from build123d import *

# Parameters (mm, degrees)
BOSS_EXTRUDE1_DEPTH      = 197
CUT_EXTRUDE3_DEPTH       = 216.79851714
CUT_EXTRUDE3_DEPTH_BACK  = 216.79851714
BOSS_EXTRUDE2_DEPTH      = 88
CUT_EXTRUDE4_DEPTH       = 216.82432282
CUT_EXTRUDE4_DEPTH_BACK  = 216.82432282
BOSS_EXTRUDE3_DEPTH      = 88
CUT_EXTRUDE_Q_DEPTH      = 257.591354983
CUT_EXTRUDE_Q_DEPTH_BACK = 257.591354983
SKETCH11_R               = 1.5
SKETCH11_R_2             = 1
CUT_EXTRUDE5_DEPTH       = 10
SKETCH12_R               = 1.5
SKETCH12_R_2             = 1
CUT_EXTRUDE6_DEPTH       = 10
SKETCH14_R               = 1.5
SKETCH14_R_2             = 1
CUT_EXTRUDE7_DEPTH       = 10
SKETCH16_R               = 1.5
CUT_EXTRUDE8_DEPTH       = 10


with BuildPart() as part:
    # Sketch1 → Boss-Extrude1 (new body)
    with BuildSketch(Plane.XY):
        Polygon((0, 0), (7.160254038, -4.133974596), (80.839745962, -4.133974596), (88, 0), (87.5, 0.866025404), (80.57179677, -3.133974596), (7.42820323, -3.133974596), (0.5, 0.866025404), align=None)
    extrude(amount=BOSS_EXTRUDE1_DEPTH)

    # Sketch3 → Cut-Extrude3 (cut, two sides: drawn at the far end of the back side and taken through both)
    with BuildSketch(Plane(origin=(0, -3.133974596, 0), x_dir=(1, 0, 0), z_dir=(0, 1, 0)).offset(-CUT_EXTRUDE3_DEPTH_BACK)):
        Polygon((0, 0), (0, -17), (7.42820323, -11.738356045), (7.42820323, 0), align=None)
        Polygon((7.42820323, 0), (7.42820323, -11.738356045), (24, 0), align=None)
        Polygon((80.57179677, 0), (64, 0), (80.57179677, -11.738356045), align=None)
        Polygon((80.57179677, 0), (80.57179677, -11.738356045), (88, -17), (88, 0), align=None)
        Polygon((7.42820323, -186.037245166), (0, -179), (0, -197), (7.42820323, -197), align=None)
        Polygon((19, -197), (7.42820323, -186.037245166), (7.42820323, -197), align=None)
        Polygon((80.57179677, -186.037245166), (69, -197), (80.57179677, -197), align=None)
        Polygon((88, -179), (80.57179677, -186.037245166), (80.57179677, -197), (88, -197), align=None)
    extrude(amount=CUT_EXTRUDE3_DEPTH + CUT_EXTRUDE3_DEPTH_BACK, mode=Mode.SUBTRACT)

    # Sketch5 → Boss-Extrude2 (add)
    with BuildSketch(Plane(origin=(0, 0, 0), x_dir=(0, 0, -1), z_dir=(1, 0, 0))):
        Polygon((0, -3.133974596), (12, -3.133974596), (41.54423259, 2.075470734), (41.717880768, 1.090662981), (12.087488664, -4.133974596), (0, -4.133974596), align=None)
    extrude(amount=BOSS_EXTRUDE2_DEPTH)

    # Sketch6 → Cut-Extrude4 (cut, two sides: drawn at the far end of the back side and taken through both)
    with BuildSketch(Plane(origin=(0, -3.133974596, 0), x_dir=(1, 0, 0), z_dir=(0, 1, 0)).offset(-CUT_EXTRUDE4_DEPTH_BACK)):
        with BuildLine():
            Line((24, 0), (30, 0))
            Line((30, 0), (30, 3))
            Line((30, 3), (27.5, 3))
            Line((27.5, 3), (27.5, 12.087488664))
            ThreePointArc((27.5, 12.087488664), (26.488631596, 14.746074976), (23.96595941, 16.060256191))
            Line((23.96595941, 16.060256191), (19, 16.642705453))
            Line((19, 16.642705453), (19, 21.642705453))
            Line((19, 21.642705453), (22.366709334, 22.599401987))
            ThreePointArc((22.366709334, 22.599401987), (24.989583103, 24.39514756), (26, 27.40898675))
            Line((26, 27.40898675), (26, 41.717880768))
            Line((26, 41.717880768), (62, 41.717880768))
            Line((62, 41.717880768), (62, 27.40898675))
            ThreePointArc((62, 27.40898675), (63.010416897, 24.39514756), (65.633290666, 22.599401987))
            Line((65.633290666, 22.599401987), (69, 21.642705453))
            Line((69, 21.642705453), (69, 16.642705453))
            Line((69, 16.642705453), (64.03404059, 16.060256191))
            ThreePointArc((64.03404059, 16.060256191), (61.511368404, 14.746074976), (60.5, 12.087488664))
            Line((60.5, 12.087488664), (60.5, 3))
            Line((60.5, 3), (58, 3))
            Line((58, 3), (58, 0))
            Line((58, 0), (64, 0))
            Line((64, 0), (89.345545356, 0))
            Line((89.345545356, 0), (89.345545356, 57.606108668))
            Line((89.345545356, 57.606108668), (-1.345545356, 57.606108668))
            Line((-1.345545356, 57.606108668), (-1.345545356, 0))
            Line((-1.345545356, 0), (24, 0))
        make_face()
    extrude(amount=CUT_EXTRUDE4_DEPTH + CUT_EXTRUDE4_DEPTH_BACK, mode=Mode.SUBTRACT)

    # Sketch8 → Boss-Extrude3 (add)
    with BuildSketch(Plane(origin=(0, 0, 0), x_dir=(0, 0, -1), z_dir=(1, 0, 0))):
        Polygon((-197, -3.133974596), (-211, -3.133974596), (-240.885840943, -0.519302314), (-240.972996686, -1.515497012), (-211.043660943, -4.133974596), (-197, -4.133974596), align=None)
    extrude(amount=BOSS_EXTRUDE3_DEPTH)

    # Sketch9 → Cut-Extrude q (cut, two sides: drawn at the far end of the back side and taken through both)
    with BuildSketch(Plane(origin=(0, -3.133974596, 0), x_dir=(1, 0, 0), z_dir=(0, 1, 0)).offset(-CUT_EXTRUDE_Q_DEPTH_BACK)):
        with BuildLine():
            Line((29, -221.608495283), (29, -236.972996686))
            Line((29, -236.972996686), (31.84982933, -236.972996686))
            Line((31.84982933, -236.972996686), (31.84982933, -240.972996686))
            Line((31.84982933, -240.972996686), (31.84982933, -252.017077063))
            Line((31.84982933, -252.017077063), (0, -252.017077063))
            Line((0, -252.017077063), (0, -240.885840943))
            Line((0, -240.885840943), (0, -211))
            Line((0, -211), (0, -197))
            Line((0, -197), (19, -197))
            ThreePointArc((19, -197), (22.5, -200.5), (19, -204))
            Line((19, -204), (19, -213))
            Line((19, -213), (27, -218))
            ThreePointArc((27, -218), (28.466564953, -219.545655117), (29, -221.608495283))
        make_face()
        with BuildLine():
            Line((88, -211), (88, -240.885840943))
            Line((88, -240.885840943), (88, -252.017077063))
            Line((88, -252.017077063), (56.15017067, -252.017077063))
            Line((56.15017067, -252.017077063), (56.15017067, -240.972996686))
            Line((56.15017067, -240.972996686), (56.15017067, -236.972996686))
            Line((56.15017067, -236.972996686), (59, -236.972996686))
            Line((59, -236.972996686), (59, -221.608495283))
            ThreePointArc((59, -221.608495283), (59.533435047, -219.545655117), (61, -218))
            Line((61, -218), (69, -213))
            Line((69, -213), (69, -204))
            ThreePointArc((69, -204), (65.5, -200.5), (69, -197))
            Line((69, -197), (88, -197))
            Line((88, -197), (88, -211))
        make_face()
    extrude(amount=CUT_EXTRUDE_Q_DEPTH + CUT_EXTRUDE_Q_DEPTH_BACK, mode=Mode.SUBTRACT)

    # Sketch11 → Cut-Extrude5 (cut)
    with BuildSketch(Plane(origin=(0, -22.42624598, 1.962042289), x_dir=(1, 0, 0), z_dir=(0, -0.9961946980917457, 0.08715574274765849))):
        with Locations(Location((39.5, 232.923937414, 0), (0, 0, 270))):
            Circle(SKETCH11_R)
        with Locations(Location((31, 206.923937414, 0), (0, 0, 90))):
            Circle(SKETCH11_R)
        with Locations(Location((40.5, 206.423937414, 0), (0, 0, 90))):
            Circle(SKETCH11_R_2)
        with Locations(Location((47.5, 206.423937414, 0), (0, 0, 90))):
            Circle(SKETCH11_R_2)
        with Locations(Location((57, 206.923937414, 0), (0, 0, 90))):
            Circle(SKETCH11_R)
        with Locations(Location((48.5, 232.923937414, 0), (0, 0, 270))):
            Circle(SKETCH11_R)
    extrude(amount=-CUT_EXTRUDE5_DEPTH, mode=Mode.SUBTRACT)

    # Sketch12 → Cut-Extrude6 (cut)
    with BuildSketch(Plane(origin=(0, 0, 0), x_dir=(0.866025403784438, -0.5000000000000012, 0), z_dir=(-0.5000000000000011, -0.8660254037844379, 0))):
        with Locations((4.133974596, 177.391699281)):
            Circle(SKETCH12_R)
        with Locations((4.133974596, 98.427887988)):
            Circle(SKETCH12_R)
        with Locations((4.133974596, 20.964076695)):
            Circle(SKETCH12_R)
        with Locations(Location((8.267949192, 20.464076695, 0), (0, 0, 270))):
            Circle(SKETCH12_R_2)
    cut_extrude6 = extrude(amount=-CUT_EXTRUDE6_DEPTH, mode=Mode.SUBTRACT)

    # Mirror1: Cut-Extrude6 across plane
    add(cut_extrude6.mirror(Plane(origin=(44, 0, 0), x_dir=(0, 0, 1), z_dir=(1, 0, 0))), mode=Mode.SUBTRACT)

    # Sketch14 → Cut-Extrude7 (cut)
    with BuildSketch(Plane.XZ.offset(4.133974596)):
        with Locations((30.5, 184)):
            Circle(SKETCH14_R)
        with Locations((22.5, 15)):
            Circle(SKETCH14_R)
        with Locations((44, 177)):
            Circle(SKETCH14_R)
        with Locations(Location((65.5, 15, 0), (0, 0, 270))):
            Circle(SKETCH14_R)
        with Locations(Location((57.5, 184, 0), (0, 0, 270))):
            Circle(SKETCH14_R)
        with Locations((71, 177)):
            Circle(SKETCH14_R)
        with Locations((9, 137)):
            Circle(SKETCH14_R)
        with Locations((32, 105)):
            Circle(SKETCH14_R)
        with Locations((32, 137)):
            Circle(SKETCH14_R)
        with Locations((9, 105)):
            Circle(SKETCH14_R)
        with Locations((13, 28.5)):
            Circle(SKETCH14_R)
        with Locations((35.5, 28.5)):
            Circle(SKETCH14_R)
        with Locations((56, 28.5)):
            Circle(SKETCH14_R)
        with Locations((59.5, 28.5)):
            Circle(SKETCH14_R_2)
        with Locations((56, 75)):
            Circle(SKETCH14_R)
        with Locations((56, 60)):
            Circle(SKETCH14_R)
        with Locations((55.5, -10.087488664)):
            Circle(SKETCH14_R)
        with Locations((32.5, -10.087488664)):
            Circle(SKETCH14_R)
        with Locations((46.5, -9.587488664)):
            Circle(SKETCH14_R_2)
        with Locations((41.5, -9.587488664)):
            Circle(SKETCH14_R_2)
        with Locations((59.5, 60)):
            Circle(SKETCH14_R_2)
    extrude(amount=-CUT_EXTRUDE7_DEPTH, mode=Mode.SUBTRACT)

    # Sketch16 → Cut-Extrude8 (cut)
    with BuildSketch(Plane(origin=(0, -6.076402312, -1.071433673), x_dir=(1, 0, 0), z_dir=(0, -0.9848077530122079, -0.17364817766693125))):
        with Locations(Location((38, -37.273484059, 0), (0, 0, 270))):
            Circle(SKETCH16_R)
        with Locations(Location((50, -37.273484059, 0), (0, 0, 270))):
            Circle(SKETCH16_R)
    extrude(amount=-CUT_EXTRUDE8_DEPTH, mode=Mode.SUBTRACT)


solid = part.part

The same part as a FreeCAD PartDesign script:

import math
import FreeCAD as App
import Part
import Sketcher
Q = App.Units.Quantity


def add_polygon(sketch, points):
    """Adds a closed chain of lines whose ends are joined by coincident constraints."""
    first, n = sketch.GeometryCount, len(points)
    for a, b in zip(points, points[1:] + points[:1]):
        sketch.addGeometry(Part.LineSegment(App.Vector(*a, 0), App.Vector(*b, 0)), False)
    for i in range(n):
        sketch.addConstraint(Sketcher.Constraint("Coincident", first + i, 2, first + (i + 1) % n, 1))

doc = App.newDocument("Part")
params = doc.addObject("Spreadsheet::Sheet", "Params")
for row, (alias, value) in enumerate([
    ("sketch1_length", "1 mm"),
    ("sketch1_length2", "8 mm"),
    ("pad1_length", "197 mm"),
    ("sketch2_width", "24 mm"),
    ("sketch2_width2", "19 mm"),
    ("sketch2_height", "17 mm"),
    ("sketch2_height2", "18 mm"),
    ("sketch3_width", "1 mm"),
    ("sketch3_height", "12 mm"),
    ("sketch3_length", "1 mm"),
    ("sketch3_length2", "30 mm"),
    ("pad2_length", "88 mm"),
    ("sketch4_radius", "4 mm"),
    ("sketch4_radius2", "5 mm"),
    ("sketch4_width", "36 mm"),
    ("sketch4_height", "3 mm"),
    ("sketch4_height2", "5 mm"),
    ("sketch5_width", "1 mm"),
    ("sketch5_height", "14 mm"),
    ("sketch5_length", "30 mm"),
    ("sketch5_length2", "1 mm"),
    ("pad3_length", "88 mm"),
    ("sketch6_radius", "3.5 mm"),
    ("sketch6_width", "19 mm"),
    ("sketch6_height", "9 mm"),
    ("sketch7_diameter", "3 mm"),
    ("sketch7_diameter2", "2 mm"),
    ("pocket4_length", "10 mm"),
    ("sketch8_diameter", "3 mm"),
    ("sketch8_diameter2", "2 mm"),
    ("pocket5_length", "10 mm"),
    ("sketch9_diameter", "3 mm"),
    ("sketch9_diameter2", "2 mm"),
    ("pocket6_length", "10 mm"),
    ("sketch10_diameter", "3 mm"),
    ("pocket7_length", "10 mm"),
], start=1):
    params.set(f"A{row}", alias)
    params.set(f"B{row}", "=" + value)
    params.setAlias(f"B{row}", alias)

body = doc.addObject("PartDesign::Body", "Body")

sketch1 = body.newObject("Sketcher::SketchObject", "Sketch")
sketch1.AttachmentSupport = (doc.getObject("XY_Plane"), [""])
sketch1.MapMode = "FlatFace"
add_polygon(sketch1, [(0, 0), (7.160254, -4.133975), (80.839746, -4.133975), (88, 0), (87.5, 0.866025), (80.571797, -3.133975), (7.428203, -3.133975), (0.5, 0.866025)])
sketch1.addConstraint(Sketcher.Constraint("Horizontal", 1))
sketch1.addConstraint(Sketcher.Constraint("Horizontal", 5))
sketch1.addConstraint(Sketcher.Constraint("Coincident", 7, 2, -1, 1))
sketch1.addConstraint(Sketcher.Constraint("PointOnObject", 2, 2, -1))
sketch1.addConstraint(Sketcher.Constraint("Perpendicular", 2, 3))
sketch1.addConstraint(Sketcher.Constraint("Perpendicular", 3, 4))
sketch1.addConstraint(Sketcher.Constraint("Parallel", 0, 6))
sketch1.addConstraint(Sketcher.Constraint("Perpendicular", 6, 7))
sketch1.addConstraint(Sketcher.Constraint("Horizontal", 3, 2, 6, 2))
sketch1.addConstraint(Sketcher.Constraint("Equal", 0, 2))
sketch1.addConstraint(Sketcher.Constraint("Angle", 0, Q("-30 deg")))
sketch1.addConstraint(Sketcher.Constraint("Distance", 3, 1.0))
sketch1.addConstraint(Sketcher.Constraint("Distance", 4, 8.0))
sketch1.addConstraint(Sketcher.Constraint("DistanceX", -1, 1, 2, 2, 88.0))
sketch1.addConstraint(Sketcher.Constraint("DistanceY", 1, 2, 3, 2, 5.0))
sketch1.setExpression("Constraints[19]", "Params.sketch1_length")
sketch1.setExpression("Constraints[20]", "Params.sketch1_length2")
pad1 = body.newObject("PartDesign::Pad", "Pad")
pad1.Profile = sketch1
pad1.setExpression("Length", "Params.pad1_length")

sketch2 = body.newObject("Sketcher::SketchObject", "Sketch001")
sketch2.AttachmentSupport = (doc.getObject("XZ_Plane"), [""])
sketch2.MapMode = "FlatFace"
sketch2.AttachmentOffset = App.Placement(App.Vector(0, 0, 3.133975), App.Rotation())
add_polygon(sketch2, [(0, 0), (0, 17), (7.428203, 11.738356), (24, 0)])
add_polygon(sketch2, [(64, 0), (80.571797, 11.738356), (88, 17), (88, 0)])
add_polygon(sketch2, [(7.428203, 186.037245), (0, 179), (0, 197), (19, 197)])
add_polygon(sketch2, [(80.571797, 186.037245), (69, 197), (88, 197), (88, 179)])
sketch2.addConstraint(Sketcher.Constraint("Vertical", 0))
sketch2.addConstraint(Sketcher.Constraint("Horizontal", 3))
sketch2.addConstraint(Sketcher.Constraint("Vertical", 6))
sketch2.addConstraint(Sketcher.Constraint("Horizontal", 7))
sketch2.addConstraint(Sketcher.Constraint("Vertical", 9))
sketch2.addConstraint(Sketcher.Constraint("Horizontal", 10))
sketch2.addConstraint(Sketcher.Constraint("Horizontal", 13))
sketch2.addConstraint(Sketcher.Constraint("Vertical", 14))
sketch2.addConstraint(Sketcher.Constraint("Coincident", 3, 2, -1, 1))
sketch2.addConstraint(Sketcher.Constraint("PointOnObject", 6, 2, -1))
sketch2.addConstraint(Sketcher.Constraint("PointOnObject", 8, 2, -2))
sketch2.addConstraint(Sketcher.Constraint("Parallel", 1, 2))
sketch2.addConstraint(Sketcher.Constraint("Parallel", 4, 5))
sketch2.addConstraint(Sketcher.Constraint("Parallel", 8, 11))
sketch2.addConstraint(Sketcher.Constraint("Parallel", 12, 15))
sketch2.addConstraint(Sketcher.Constraint("Horizontal", 1, 2, 4, 2))
sketch2.addConstraint(Sketcher.Constraint("Horizontal", 0, 2, 5, 2))
sketch2.addConstraint(Sketcher.Constraint("Horizontal", 10, 2, 12, 2))
sketch2.addConstraint(Sketcher.Constraint("Horizontal", 8, 2, 14, 2))
sketch2.addConstraint(Sketcher.Constraint("Horizontal", 11, 2, 15, 2))
sketch2.addConstraint(Sketcher.Constraint("Vertical", 1, 2, 11, 2))
sketch2.addConstraint(Sketcher.Constraint("Vertical", 6, 2, 13, 2))
sketch2.addConstraint(Sketcher.Constraint("Vertical", 4, 2, 15, 2))
sketch2.addConstraint(Sketcher.Constraint("Equal", 3, 7))
sketch2.addConstraint(Sketcher.Constraint("DistanceX", 3, 2, 3, 1, 24.0))
sketch2.addConstraint(Sketcher.Constraint("DistanceX", 10, 1, 10, 2, 19.0))
sketch2.addConstraint(Sketcher.Constraint("DistanceY", 0, 1, 0, 2, 17.0))
sketch2.addConstraint(Sketcher.Constraint("DistanceY", 9, 1, 9, 2, 18.0))
sketch2.addConstraint(Sketcher.Constraint("DistanceX", -1, 1, 5, 2, 88.0))
sketch2.addConstraint(Sketcher.Constraint("DistanceY", -1, 1, 8, 2, 179.0))
sketch2.addConstraint(Sketcher.Constraint("Distance", 8, 10.232352))
sketch2.setExpression("Constraints[40]", "Params.sketch2_width")
sketch2.setExpression("Constraints[41]", "Params.sketch2_width2")
sketch2.setExpression("Constraints[42]", "Params.sketch2_height")
sketch2.setExpression("Constraints[43]", "Params.sketch2_height2")
pocket1 = body.newObject("PartDesign::Pocket", "Pocket")
pocket1.Profile = sketch2
pocket1.Type = "ThroughAll"
pocket1.Midplane = True

sketch3 = body.newObject("Sketcher::SketchObject", "Sketch002")
sketch3.AttachmentSupport = (doc.getObject("YZ_Plane"), [""])
sketch3.MapMode = "FlatFace"
add_polygon(sketch3, [(-3.133975, -12), (-3.133975, 0), (-4.133975, 0), (-4.133975, -12.087489), (1.090663, -41.717881), (2.075471, -41.544233)])
sketch3.addConstraint(Sketcher.Constraint("Vertical", 0))
sketch3.addConstraint(Sketcher.Constraint("Horizontal", 1))
sketch3.addConstraint(Sketcher.Constraint("Vertical", 2))
sketch3.addConstraint(Sketcher.Constraint("PointOnObject", 0, 2, -1))
sketch3.addConstraint(Sketcher.Constraint("Perpendicular", 3, 4))
sketch3.addConstraint(Sketcher.Constraint("Perpendicular", 4, 5))
sketch3.addConstraint(Sketcher.Constraint("DistanceX", 1, 2, 1, 1, 1.0))
sketch3.addConstraint(Sketcher.Constraint("DistanceY", 0, 1, 0, 2, 12.0))
sketch3.addConstraint(Sketcher.Constraint("Angle", 3, Q("-80 deg")))
sketch3.addConstraint(Sketcher.Constraint("Distance", 4, 1.0))
sketch3.addConstraint(Sketcher.Constraint("Distance", 5, 30.0))
sketch3.addConstraint(Sketcher.Constraint("DistanceX", -1, 1, 4, 2, 2.075471))
sketch3.setExpression("Constraints[12]", "Params.sketch3_width")
sketch3.setExpression("Constraints[13]", "Params.sketch3_height")
sketch3.setExpression("Constraints[15]", "Params.sketch3_length")
sketch3.setExpression("Constraints[16]", "Params.sketch3_length2")
pad2 = body.newObject("PartDesign::Pad", "Pad001")
pad2.Profile = sketch3
pad2.setExpression("Length", "Params.pad2_length")

sketch4 = body.newObject("Sketcher::SketchObject", "Sketch003")
sketch4.AttachmentSupport = (doc.getObject("XZ_Plane"), [""])
sketch4.MapMode = "FlatFace"
sketch4.AttachmentOffset = App.Placement(App.Vector(0, 0, 3.133975), App.Rotation())
sketch4.addGeometry(Part.LineSegment(App.Vector(30, 0, 0), App.Vector(30, -3, 0)), False)
sketch4.addGeometry(Part.LineSegment(App.Vector(30, -3, 0), App.Vector(27.5, -3, 0)), False)
sketch4.addGeometry(Part.LineSegment(App.Vector(27.5, -3, 0), App.Vector(27.5, -12.087489, 0)), False)
sketch4.addGeometry(Part.ArcOfCircle(Part.Circle(App.Vector(23.5, -12.087489, 0), App.Vector(0, 0, 1), 4), math.radians(-83.310435), math.radians(0)), False)
sketch4.addGeometry(Part.LineSegment(App.Vector(23.965959, -16.060256, 0), App.Vector(19, -16.642705, 0)), False)
sketch4.addGeometry(Part.LineSegment(App.Vector(19, -16.642705, 0), App.Vector(19, -21.642705, 0)), False)
sketch4.addGeometry(Part.LineSegment(App.Vector(19, -21.642705, 0), App.Vector(22.366709, -22.599402, 0)), False)
sketch4.addGeometry(Part.ArcOfCircle(Part.Circle(App.Vector(21, -27.408987, 0), App.Vector(0, 0, 1), 5), math.radians(0), math.radians(74.136775)), False)
sketch4.addGeometry(Part.LineSegment(App.Vector(26, -27.408987, 0), App.Vector(26, -41.717881, 0)), False)
sketch4.addGeometry(Part.LineSegment(App.Vector(26, -41.717881, 0), App.Vector(62, -41.717881, 0)), False)
sketch4.addGeometry(Part.LineSegment(App.Vector(62, -41.717881, 0), App.Vector(62, -27.408987, 0)), False)
sketch4.addGeometry(Part.ArcOfCircle(Part.Circle(App.Vector(67, -27.408987, 0), App.Vector(0, 0, 1), 5), math.radians(105.863225), math.radians(180)), False)
sketch4.addGeometry(Part.LineSegment(App.Vector(65.633291, -22.599402, 0), App.Vector(69, -21.642705, 0)), False)
sketch4.addGeometry(Part.LineSegment(App.Vector(69, -21.642705, 0), App.Vector(69, -16.642705, 0)), False)
sketch4.addGeometry(Part.LineSegment(App.Vector(69, -16.642705, 0), App.Vector(64.034041, -16.060256, 0)), False)
sketch4.addGeometry(Part.ArcOfCircle(Part.Circle(App.Vector(64.5, -12.087489, 0), App.Vector(0, 0, 1), 4), math.radians(-180), math.radians(-96.689565)), False)
sketch4.addGeometry(Part.LineSegment(App.Vector(60.5, -12.087489, 0), App.Vector(60.5, -3, 0)), False)
sketch4.addGeometry(Part.LineSegment(App.Vector(60.5, -3, 0), App.Vector(58, -3, 0)), False)
sketch4.addGeometry(Part.LineSegment(App.Vector(58, -3, 0), App.Vector(58, 0, 0)), False)
sketch4.addGeometry(Part.LineSegment(App.Vector(58, 0, 0), App.Vector(89.345545, 0, 0)), False)
sketch4.addGeometry(Part.LineSegment(App.Vector(89.345545, 0, 0), App.Vector(89.345545, -57.606109, 0)), False)
sketch4.addGeometry(Part.LineSegment(App.Vector(89.345545, -57.606109, 0), App.Vector(-1.345545, -57.606109, 0)), False)
sketch4.addGeometry(Part.LineSegment(App.Vector(-1.345545, -57.606109, 0), App.Vector(-1.345545, 0, 0)), False)
sketch4.addGeometry(Part.LineSegment(App.Vector(-1.345545, 0, 0), App.Vector(30, 0, 0)), False)
sketch4.addConstraint(Sketcher.Constraint("Coincident", 0, 2, 1, 1))
sketch4.addConstraint(Sketcher.Constraint("Coincident", 1, 2, 2, 1))
sketch4.addConstraint(Sketcher.Constraint("Tangent", 2, 2, 3, 2))
sketch4.addConstraint(Sketcher.Constraint("Tangent", 3, 1, 4, 1))
sketch4.addConstraint(Sketcher.Constraint("Coincident", 4, 2, 5, 1))
sketch4.addConstraint(Sketcher.Constraint("Coincident", 5, 2, 6, 1))
sketch4.addConstraint(Sketcher.Constraint("Tangent", 6, 2, 7, 2))
sketch4.addConstraint(Sketcher.Constraint("Tangent", 7, 1, 8, 1))
sketch4.addConstraint(Sketcher.Constraint("Coincident", 8, 2, 9, 1))
sketch4.addConstraint(Sketcher.Constraint("Coincident", 9, 2, 10, 1))
sketch4.addConstraint(Sketcher.Constraint("Tangent", 10, 2, 11, 2))
sketch4.addConstraint(Sketcher.Constraint("Tangent", 11, 1, 12, 1))
sketch4.addConstraint(Sketcher.Constraint("Coincident", 12, 2, 13, 1))
sketch4.addConstraint(Sketcher.Constraint("Coincident", 13, 2, 14, 1))
sketch4.addConstraint(Sketcher.Constraint("Tangent", 14, 2, 15, 2))
sketch4.addConstraint(Sketcher.Constraint("Tangent", 15, 1, 16, 1))
sketch4.addConstraint(Sketcher.Constraint("Coincident", 16, 2, 17, 1))
sketch4.addConstraint(Sketcher.Constraint("Coincident", 17, 2, 18, 1))
sketch4.addConstraint(Sketcher.Constraint("Coincident", 18, 2, 19, 1))
sketch4.addConstraint(Sketcher.Constraint("Coincident", 19, 2, 20, 1))
sketch4.addConstraint(Sketcher.Constraint("Coincident", 20, 2, 21, 1))
sketch4.addConstraint(Sketcher.Constraint("Coincident", 21, 2, 22, 1))
sketch4.addConstraint(Sketcher.Constraint("Coincident", 22, 2, 23, 1))
sketch4.addConstraint(Sketcher.Constraint("Coincident", 23, 2, 0, 1))
sketch4.addConstraint(Sketcher.Constraint("Vertical", 0))
sketch4.addConstraint(Sketcher.Constraint("Horizontal", 1))
sketch4.addConstraint(Sketcher.Constraint("Vertical", 2))
sketch4.addConstraint(Sketcher.Constraint("Vertical", 5))
sketch4.addConstraint(Sketcher.Constraint("Vertical", 8))
sketch4.addConstraint(Sketcher.Constraint("Horizontal", 9))
sketch4.addConstraint(Sketcher.Constraint("Vertical", 10))
sketch4.addConstraint(Sketcher.Constraint("Vertical", 13))
sketch4.addConstraint(Sketcher.Constraint("Vertical", 16))
sketch4.addConstraint(Sketcher.Constraint("Horizontal", 17))
sketch4.addConstraint(Sketcher.Constraint("Vertical", 18))
sketch4.addConstraint(Sketcher.Constraint("Horizontal", 19))
sketch4.addConstraint(Sketcher.Constraint("Vertical", 20))
sketch4.addConstraint(Sketcher.Constraint("Horizontal", 21))
sketch4.addConstraint(Sketcher.Constraint("Vertical", 22))
sketch4.addConstraint(Sketcher.Constraint("Horizontal", 23))
sketch4.addConstraint(Sketcher.Constraint("Equal", 7, 11))
sketch4.addConstraint(Sketcher.Constraint("Equal", 3, 15))
sketch4.addConstraint(Sketcher.Constraint("PointOnObject", 18, 2, -1))
sketch4.addConstraint(Sketcher.Constraint("PointOnObject", 22, 2, -1))
sketch4.addConstraint(Sketcher.Constraint("Horizontal", 7, 3, 11, 3))
sketch4.addConstraint(Sketcher.Constraint("Horizontal", 3, 3, 15, 3))
sketch4.addConstraint(Sketcher.Constraint("Horizontal", 6, 2, 11, 1))
sketch4.addConstraint(Sketcher.Constraint("Horizontal", 5, 2, 12, 2))
sketch4.addConstraint(Sketcher.Constraint("Horizontal", 4, 2, 13, 2))
sketch4.addConstraint(Sketcher.Constraint("Horizontal", 3, 1, 14, 2))
sketch4.addConstraint(Sketcher.Constraint("Horizontal", 1, 2, 16, 2))
sketch4.addConstraint(Sketcher.Constraint("Equal", 1, 17))
sketch4.addConstraint(Sketcher.Constraint("Equal", 19, 23))
sketch4.addConstraint(Sketcher.Constraint("Radius", 3, 4.0))
sketch4.addConstraint(Sketcher.Constraint("Radius", 7, 5.0))
sketch4.addConstraint(Sketcher.Constraint("DistanceX", 9, 1, 9, 2, 36.0))
sketch4.addConstraint(Sketcher.Constraint("DistanceY", 0, 2, 0, 1, 3.0))
sketch4.addConstraint(Sketcher.Constraint("DistanceY", 5, 2, 5, 1, 5.0))
sketch4.addConstraint(Sketcher.Constraint("Distance", 4, 5.0))
sketch4.addConstraint(Sketcher.Constraint("DistanceX", 1, 2, 1, 1, 2.5))
sketch4.addConstraint(Sketcher.Constraint("DistanceX", -1, 1, 7, 3, 21.0))
sketch4.addConstraint(Sketcher.Constraint("DistanceX", -1, 1, 0, 2, 30.0))
sketch4.addConstraint(Sketcher.Constraint("DistanceX", -1, 1, 4, 2, 19.0))
sketch4.addConstraint(Sketcher.Constraint("Distance", 6, 3.5))
sketch4.addConstraint(Sketcher.Constraint("DistanceX", 21, 2, 21, 1, 90.691091))
sketch4.addConstraint(Sketcher.Constraint("DistanceY", 2, 2, 2, 1, 9.087489))
sketch4.addConstraint(Sketcher.Constraint("DistanceY", 20, 2, 20, 1, 57.606109))
sketch4.addConstraint(Sketcher.Constraint("DistanceY", 8, 2, 8, 1, 14.308894))
sketch4.setExpression("Constraints[53]", "Params.sketch4_radius")
sketch4.setExpression("Constraints[54]", "Params.sketch4_radius2")
sketch4.setExpression("Constraints[55]", "Params.sketch4_width")
sketch4.setExpression("Constraints[56]", "Params.sketch4_height")
sketch4.setExpression("Constraints[57]", "Params.sketch4_height2")
pocket2 = body.newObject("PartDesign::Pocket", "Pocket001")
pocket2.Profile = sketch4
pocket2.Type = "ThroughAll"
pocket2.Midplane = True

sketch5 = body.newObject("Sketcher::SketchObject", "Sketch004")
sketch5.AttachmentSupport = (doc.getObject("YZ_Plane"), [""])
sketch5.MapMode = "FlatFace"
add_polygon(sketch5, [(-3.133975, 197), (-3.133975, 211), (-0.519302, 240.885841), (-1.515497, 240.972997), (-4.133975, 211.043661), (-4.133975, 197)])
sketch5.addConstraint(Sketcher.Constraint("Vertical", 0))
sketch5.addConstraint(Sketcher.Constraint("Vertical", 4))
sketch5.addConstraint(Sketcher.Constraint("Horizontal", 5))
sketch5.addConstraint(Sketcher.Constraint("Perpendicular", 1, 2))
sketch5.addConstraint(Sketcher.Constraint("Perpendicular", 2, 3))
sketch5.addConstraint(Sketcher.Constraint("DistanceX", 5, 1, 5, 2, 1.0))
sketch5.addConstraint(Sketcher.Constraint("DistanceY", 0, 1, 0, 2, 14.0))
sketch5.addConstraint(Sketcher.Constraint("Angle", 1, Q("85 deg")))
sketch5.addConstraint(Sketcher.Constraint("Distance", 1, 30.0))
sketch5.addConstraint(Sketcher.Constraint("Distance", 2, 1.0))
sketch5.addConstraint(Sketcher.Constraint("DistanceY", -1, 1, 0, 2, 211.0))
sketch5.addConstraint(Sketcher.Constraint("DistanceX", 0, 2, -1, 1, 3.133975))
sketch5.setExpression("Constraints[11]", "Params.sketch5_width")
sketch5.setExpression("Constraints[12]", "Params.sketch5_height")
sketch5.setExpression("Constraints[14]", "Params.sketch5_length")
sketch5.setExpression("Constraints[15]", "Params.sketch5_length2")
pad3 = body.newObject("PartDesign::Pad", "Pad002")
pad3.Profile = sketch5
pad3.setExpression("Length", "Params.pad3_length")

sketch6 = body.newObject("Sketcher::SketchObject", "Sketch005")
sketch6.AttachmentSupport = (doc.getObject("XZ_Plane"), [""])
sketch6.MapMode = "FlatFace"
sketch6.AttachmentOffset = App.Placement(App.Vector(0, 0, 3.133975), App.Rotation())
sketch6.addGeometry(Part.LineSegment(App.Vector(29, 236.972997, 0), App.Vector(29, 221.608495, 0)), False)
sketch6.addGeometry(Part.ArcOfCircle(Part.Circle(App.Vector(24.74469, 221.608495, 0), App.Vector(0, 0, 1), 4.25531), math.radians(-57.994617), math.radians(0)), False)
sketch6.addGeometry(Part.LineSegment(App.Vector(27, 218, 0), App.Vector(19, 213, 0)), False)
sketch6.addGeometry(Part.LineSegment(App.Vector(19, 213, 0), App.Vector(19, 204, 0)), False)
sketch6.addGeometry(Part.ArcOfCircle(Part.Circle(App.Vector(19, 200.5, 0), App.Vector(0, 0, 1), 3.5), math.radians(-90), math.radians(90)), False)
sketch6.addGeometry(Part.LineSegment(App.Vector(19, 197, 0), App.Vector(0, 197, 0)), False)
sketch6.addGeometry(Part.LineSegment(App.Vector(0, 197, 0), App.Vector(0, 252.017077, 0)), False)
sketch6.addGeometry(Part.LineSegment(App.Vector(0, 252.017077, 0), App.Vector(31.849829, 252.017077, 0)), False)
sketch6.addGeometry(Part.LineSegment(App.Vector(31.849829, 252.017077, 0), App.Vector(31.849829, 236.972997, 0)), False)
sketch6.addGeometry(Part.LineSegment(App.Vector(31.849829, 236.972997, 0), App.Vector(29, 236.972997, 0)), False)
sketch6.addGeometry(Part.LineSegment(App.Vector(56.150171, 252.017077, 0), App.Vector(88, 252.017077, 0)), False)
sketch6.addGeometry(Part.LineSegment(App.Vector(88, 252.017077, 0), App.Vector(88, 197, 0)), False)
sketch6.addGeometry(Part.LineSegment(App.Vector(88, 197, 0), App.Vector(69, 197, 0)), False)
sketch6.addGeometry(Part.ArcOfCircle(Part.Circle(App.Vector(69, 200.5, 0), App.Vector(0, 0, 1), 3.5), math.radians(90), math.radians(270)), False)
sketch6.addGeometry(Part.LineSegment(App.Vector(69, 204, 0), App.Vector(69, 213, 0)), False)
sketch6.addGeometry(Part.LineSegment(App.Vector(69, 213, 0), App.Vector(61, 218, 0)), False)
sketch6.addGeometry(Part.ArcOfCircle(Part.Circle(App.Vector(63.25531, 221.608495, 0), App.Vector(0, 0, 1), 4.25531), math.radians(-180), math.radians(-122.005383)), False)
sketch6.addGeometry(Part.LineSegment(App.Vector(59, 221.608495, 0), App.Vector(59, 236.972997, 0)), False)
sketch6.addGeometry(Part.LineSegment(App.Vector(59, 236.972997, 0), App.Vector(56.150171, 236.972997, 0)), False)
sketch6.addGeometry(Part.LineSegment(App.Vector(56.150171, 236.972997, 0), App.Vector(56.150171, 252.017077, 0)), False)
sketch6.addConstraint(Sketcher.Constraint("Tangent", 0, 2, 1, 2))
sketch6.addConstraint(Sketcher.Constraint("Tangent", 1, 1, 2, 1))
sketch6.addConstraint(Sketcher.Constraint("Coincident", 2, 2, 3, 1))
sketch6.addConstraint(Sketcher.Constraint("Coincident", 3, 2, 4, 2))
sketch6.addConstraint(Sketcher.Constraint("Tangent", 4, 1, 5, 1))
sketch6.addConstraint(Sketcher.Constraint("Coincident", 5, 2, 6, 1))
sketch6.addConstraint(Sketcher.Constraint("Coincident", 6, 2, 7, 1))
sketch6.addConstraint(Sketcher.Constraint("Coincident", 7, 2, 8, 1))
sketch6.addConstraint(Sketcher.Constraint("Coincident", 8, 2, 9, 1))
sketch6.addConstraint(Sketcher.Constraint("Coincident", 9, 2, 0, 1))
sketch6.addConstraint(Sketcher.Constraint("Coincident", 10, 2, 11, 1))
sketch6.addConstraint(Sketcher.Constraint("Coincident", 11, 2, 12, 1))
sketch6.addConstraint(Sketcher.Constraint("Tangent", 12, 2, 13, 2))
sketch6.addConstraint(Sketcher.Constraint("Coincident", 13, 1, 14, 1))
sketch6.addConstraint(Sketcher.Constraint("Coincident", 14, 2, 15, 1))
sketch6.addConstraint(Sketcher.Constraint("Tangent", 15, 2, 16, 2))
sketch6.addConstraint(Sketcher.Constraint("Tangent", 16, 1, 17, 1))
sketch6.addConstraint(Sketcher.Constraint("Coincident", 17, 2, 18, 1))
sketch6.addConstraint(Sketcher.Constraint("Coincident", 18, 2, 19, 1))
sketch6.addConstraint(Sketcher.Constraint("Coincident", 19, 2, 10, 1))
sketch6.addConstraint(Sketcher.Constraint("Vertical", 0))
sketch6.addConstraint(Sketcher.Constraint("Vertical", 3))
sketch6.addConstraint(Sketcher.Constraint("Horizontal", 5))
sketch6.addConstraint(Sketcher.Constraint("Vertical", 6))
sketch6.addConstraint(Sketcher.Constraint("Horizontal", 7))
sketch6.addConstraint(Sketcher.Constraint("Vertical", 8))
sketch6.addConstraint(Sketcher.Constraint("Horizontal", 9))
sketch6.addConstraint(Sketcher.Constraint("Horizontal", 10))
sketch6.addConstraint(Sketcher.Constraint("Vertical", 11))
sketch6.addConstraint(Sketcher.Constraint("Horizontal", 12))
sketch6.addConstraint(Sketcher.Constraint("Vertical", 14))
sketch6.addConstraint(Sketcher.Constraint("Vertical", 17))
sketch6.addConstraint(Sketcher.Constraint("Horizontal", 18))
sketch6.addConstraint(Sketcher.Constraint("Vertical", 19))
sketch6.addConstraint(Sketcher.Constraint("Equal", 4, 13))
sketch6.addConstraint(Sketcher.Constraint("Equal", 1, 16))
sketch6.addConstraint(Sketcher.Constraint("PointOnObject", 5, 2, -2))
sketch6.addConstraint(Sketcher.Constraint("Horizontal", 4, 3, 13, 3))
sketch6.addConstraint(Sketcher.Constraint("Horizontal", 1, 3, 16, 3))
sketch6.addConstraint(Sketcher.Constraint("Horizontal", 7, 2, 10, 2))
sketch6.addConstraint(Sketcher.Constraint("Horizontal", 2, 2, 14, 2))
sketch6.addConstraint(Sketcher.Constraint("Horizontal", 1, 1, 15, 2))
sketch6.addConstraint(Sketcher.Constraint("Horizontal", 9, 2, 17, 2))
sketch6.addConstraint(Sketcher.Constraint("Vertical", 4, 3, 2, 2))
sketch6.addConstraint(Sketcher.Constraint("Vertical", 12, 2, 13, 1))
sketch6.addConstraint(Sketcher.Constraint("Equal", 7, 10))
sketch6.addConstraint(Sketcher.Constraint("Equal", 5, 12))
sketch6.addConstraint(Sketcher.Constraint("Radius", 4, 3.5))
sketch6.addConstraint(Sketcher.Constraint("DistanceX", 5, 2, 5, 1, 19.0))
sketch6.addConstraint(Sketcher.Constraint("DistanceY", 3, 2, 3, 1, 9.0))
sketch6.addConstraint(Sketcher.Constraint("DistanceX", -1, 1, 13, 3, 69.0))
sketch6.addConstraint(Sketcher.Constraint("DistanceX", -1, 1, 0, 2, 29.0))
sketch6.addConstraint(Sketcher.Constraint("DistanceX", -1, 1, 1, 1, 27.0))
sketch6.addConstraint(Sketcher.Constraint("DistanceY", -1, 1, 1, 1, 218.0))
sketch6.addConstraint(Sketcher.Constraint("DistanceY", -1, 1, 2, 2, 213.0))
sketch6.addConstraint(Sketcher.Constraint("DistanceY", 0, 2, 0, 1, 15.364501))
sketch6.addConstraint(Sketcher.Constraint("DistanceX", 7, 1, 7, 2, 31.849829))
sketch6.addConstraint(Sketcher.Constraint("DistanceY", 8, 2, 8, 1, 15.04408))
sketch6.setExpression("Constraints[47]", "Params.sketch6_radius")
sketch6.setExpression("Constraints[48]", "Params.sketch6_width")
sketch6.setExpression("Constraints[49]", "Params.sketch6_height")
pocket3 = body.newObject("PartDesign::Pocket", "Pocket002")
pocket3.Profile = sketch6
pocket3.Type = "ThroughAll"
pocket3.Midplane = True

sketch7 = body.newObject("Sketcher::SketchObject", "Sketch006")
sketch7.Placement = App.Placement(App.Vector(0, -22.426246, 1.962042), App.Rotation(App.Vector(1, 0, 0), App.Vector(0, 0.087155743, 0.996194698), App.Vector(0, -0.996194698, 0.087155743), "ZXY"))
sketch7.addGeometry(Part.Circle(App.Vector(39.5, 232.923937, 0), App.Vector(0, 0, 1), 1.5), False)
sketch7.addGeometry(Part.Circle(App.Vector(31, 206.923937, 0), App.Vector(0, 0, 1), 1.5), False)
sketch7.addGeometry(Part.Circle(App.Vector(40.5, 206.423937, 0), App.Vector(0, 0, 1), 1), False)
sketch7.addGeometry(Part.Circle(App.Vector(47.5, 206.423937, 0), App.Vector(0, 0, 1), 1), False)
sketch7.addGeometry(Part.Circle(App.Vector(57, 206.923937, 0), App.Vector(0, 0, 1), 1.5), False)
sketch7.addGeometry(Part.Circle(App.Vector(48.5, 232.923937, 0), App.Vector(0, 0, 1), 1.5), False)
sketch7.addConstraint(Sketcher.Constraint("Equal", 0, 1))
sketch7.addConstraint(Sketcher.Constraint("Equal", 2, 3))
sketch7.addConstraint(Sketcher.Constraint("Equal", 1, 4))
sketch7.addConstraint(Sketcher.Constraint("Equal", 4, 5))
sketch7.addConstraint(Sketcher.Constraint("Horizontal", 2, 3, 3, 3))
sketch7.addConstraint(Sketcher.Constraint("Horizontal", 1, 3, 4, 3))
sketch7.addConstraint(Sketcher.Constraint("Horizontal", 0, 3, 5, 3))
sketch7.addConstraint(Sketcher.Constraint("Diameter", 0, 3.0))
sketch7.addConstraint(Sketcher.Constraint("Diameter", 2, 2.0))
sketch7.addConstraint(Sketcher.Constraint("DistanceX", -1, 1, 1, 3, 31.0))
sketch7.addConstraint(Sketcher.Constraint("DistanceX", -1, 1, 4, 3, 57.0))
sketch7.addConstraint(Sketcher.Constraint("DistanceY", 1, 3, 0, 3, 26.0))
sketch7.addConstraint(Sketcher.Constraint("DistanceX", 0, 3, 2, 3, 1.0))
sketch7.addConstraint(Sketcher.Constraint("DistanceX", 2, 3, 3, 3, 7.0))
sketch7.addConstraint(Sketcher.Constraint("DistanceX", 0, 3, 5, 3, 9.0))
sketch7.addConstraint(Sketcher.Constraint("DistanceX", -1, 1, 0, 3, 39.5))
sketch7.addConstraint(Sketcher.Constraint("DistanceY", 2, 3, 1, 3, 0.5))
sketch7.addConstraint(Sketcher.Constraint("DistanceY", -1, 1, 0, 3, 232.923937))
sketch7.setExpression("Constraints[7]", "Params.sketch7_diameter")
sketch7.setExpression("Constraints[8]", "Params.sketch7_diameter2")
pocket4 = body.newObject("PartDesign::Pocket", "Pocket003")
pocket4.Profile = sketch7
pocket4.setExpression("Length", "Params.pocket4_length")

sketch8 = body.newObject("Sketcher::SketchObject", "Sketch007")
sketch8.Placement = App.Placement(App.Vector(0, 0, 0), App.Rotation(App.Vector(0.866025404, -0.5, 0), App.Vector(0, 0, 1), App.Vector(-0.5, -0.866025404, 0), "ZXY"))
sketch8.addGeometry(Part.Circle(App.Vector(4.133975, 177.391699, 0), App.Vector(0, 0, 1), 1.5), False)
sketch8.addGeometry(Part.Circle(App.Vector(4.133975, 98.427888, 0), App.Vector(0, 0, 1), 1.5), False)
sketch8.addGeometry(Part.Circle(App.Vector(4.133975, 20.964077, 0), App.Vector(0, 0, 1), 1.5), False)
sketch8.addGeometry(Part.Circle(App.Vector(8.267949, 20.464077, 0), App.Vector(0, 0, 1), 1), False)
sketch8.addConstraint(Sketcher.Constraint("Equal", 0, 1))
sketch8.addConstraint(Sketcher.Constraint("Equal", 1, 2))
sketch8.addConstraint(Sketcher.Constraint("Vertical", 0, 3, 1, 3))
sketch8.addConstraint(Sketcher.Constraint("Vertical", 1, 3, 2, 3))
sketch8.addConstraint(Sketcher.Constraint("Diameter", 0, 3.0))
sketch8.addConstraint(Sketcher.Constraint("Diameter", 3, 2.0))
sketch8.addConstraint(Sketcher.Constraint("DistanceY", 3, 3, 2, 3, 0.5))
sketch8.addConstraint(Sketcher.Constraint("DistanceY", -1, 1, 0, 3, 177.391699))
sketch8.addConstraint(Sketcher.Constraint("DistanceY", -1, 1, 1, 3, 98.427888))
sketch8.addConstraint(Sketcher.Constraint("DistanceX", -1, 1, 3, 3, 8.267949))
sketch8.addConstraint(Sketcher.Constraint("DistanceY", 2, 3, 1, 3, 77.463811))
sketch8.addConstraint(Sketcher.Constraint("DistanceX", -1, 1, 0, 3, 4.133975))
sketch8.setExpression("Constraints[4]", "Params.sketch8_diameter")
sketch8.setExpression("Constraints[5]", "Params.sketch8_diameter2")
pocket5 = body.newObject("PartDesign::Pocket", "Pocket004")
pocket5.Profile = sketch8
pocket5.setExpression("Length", "Params.pocket5_length")
doc.recompute()

datumplane = body.newObject("PartDesign::Plane", "DatumPlane")
datumplane.AttachmentSupport = (doc.getObject("YZ_Plane"), [""])
datumplane.MapMode = "FlatFace"
datumplane.AttachmentOffset = App.Placement(App.Vector(0, 0, 44), App.Rotation())
mirrored = body.newObject("PartDesign::Mirrored", "Mirrored")
mirrored.Originals = [pocket5]
mirrored.MirrorPlane = (datumplane, [""])
body.Tip = mirrored

sketch9 = body.newObject("Sketcher::SketchObject", "Sketch008")
sketch9.AttachmentSupport = (doc.getObject("XZ_Plane"), [""])
sketch9.MapMode = "FlatFace"
sketch9.AttachmentOffset = App.Placement(App.Vector(0, 0, 4.133975), App.Rotation())
sketch9.addGeometry(Part.Circle(App.Vector(30.5, 184, 0), App.Vector(0, 0, 1), 1.5), False)
sketch9.addGeometry(Part.Circle(App.Vector(22.5, 15, 0), App.Vector(0, 0, 1), 1.5), False)
sketch9.addGeometry(Part.Circle(App.Vector(44, 177, 0), App.Vector(0, 0, 1), 1.5), False)
sketch9.addGeometry(Part.Circle(App.Vector(65.5, 15, 0), App.Vector(0, 0, 1), 1.5), False)
sketch9.addGeometry(Part.Circle(App.Vector(57.5, 184, 0), App.Vector(0, 0, 1), 1.5), False)
sketch9.addGeometry(Part.Circle(App.Vector(71, 177, 0), App.Vector(0, 0, 1), 1.5), False)
sketch9.addGeometry(Part.Circle(App.Vector(9, 137, 0), App.Vector(0, 0, 1), 1.5), False)
sketch9.addGeometry(Part.Circle(App.Vector(32, 105, 0), App.Vector(0, 0, 1), 1.5), False)
sketch9.addGeometry(Part.Circle(App.Vector(32, 137, 0), App.Vector(0, 0, 1), 1.5), False)
sketch9.addGeometry(Part.Circle(App.Vector(9, 105, 0), App.Vector(0, 0, 1), 1.5), False)
sketch9.addGeometry(Part.Circle(App.Vector(13, 28.5, 0), App.Vector(0, 0, 1), 1.5), False)
sketch9.addGeometry(Part.Circle(App.Vector(35.5, 28.5, 0), App.Vector(0, 0, 1), 1.5), False)
sketch9.addGeometry(Part.Circle(App.Vector(56, 28.5, 0), App.Vector(0, 0, 1), 1.5), False)
sketch9.addGeometry(Part.Circle(App.Vector(59.5, 28.5, 0), App.Vector(0, 0, 1), 1), False)
sketch9.addGeometry(Part.Circle(App.Vector(56, 75, 0), App.Vector(0, 0, 1), 1.5), False)
sketch9.addGeometry(Part.Circle(App.Vector(56, 60, 0), App.Vector(0, 0, 1), 1.5), False)
sketch9.addGeometry(Part.Circle(App.Vector(55.5, -10.087489, 0), App.Vector(0, 0, 1), 1.5), False)
sketch9.addGeometry(Part.Circle(App.Vector(32.5, -10.087489, 0), App.Vector(0, 0, 1), 1.5), False)
sketch9.addGeometry(Part.Circle(App.Vector(46.5, -9.587489, 0), App.Vector(0, 0, 1), 1), False)
sketch9.addGeometry(Part.Circle(App.Vector(41.5, -9.587489, 0), App.Vector(0, 0, 1), 1), False)
sketch9.addGeometry(Part.Circle(App.Vector(59.5, 60, 0), App.Vector(0, 0, 1), 1), False)
sketch9.addConstraint(Sketcher.Constraint("Equal", 0, 1))
sketch9.addConstraint(Sketcher.Constraint("Equal", 1, 2))
sketch9.addConstraint(Sketcher.Constraint("Equal", 2, 3))
sketch9.addConstraint(Sketcher.Constraint("Equal", 3, 4))
sketch9.addConstraint(Sketcher.Constraint("Equal", 4, 5))
sketch9.addConstraint(Sketcher.Constraint("Equal", 5, 6))
sketch9.addConstraint(Sketcher.Constraint("Equal", 6, 7))
sketch9.addConstraint(Sketcher.Constraint("Equal", 7, 8))
sketch9.addConstraint(Sketcher.Constraint("Equal", 8, 9))
sketch9.addConstraint(Sketcher.Constraint("Equal", 9, 10))
sketch9.addConstraint(Sketcher.Constraint("Equal", 10, 11))
sketch9.addConstraint(Sketcher.Constraint("Equal", 11, 12))
sketch9.addConstraint(Sketcher.Constraint("Equal", 12, 14))
sketch9.addConstraint(Sketcher.Constraint("Equal", 14, 15))
sketch9.addConstraint(Sketcher.Constraint("Equal", 15, 16))
sketch9.addConstraint(Sketcher.Constraint("Equal", 16, 17))
sketch9.addConstraint(Sketcher.Constraint("Equal", 13, 18))
sketch9.addConstraint(Sketcher.Constraint("Equal", 18, 19))
sketch9.addConstraint(Sketcher.Constraint("Equal", 19, 20))
sketch9.addConstraint(Sketcher.Constraint("Horizontal", 1, 3, 3, 3))
sketch9.addConstraint(Sketcher.Constraint("Horizontal", 0, 3, 4, 3))
sketch9.addConstraint(Sketcher.Constraint("Horizontal", 2, 3, 5, 3))
sketch9.addConstraint(Sketcher.Constraint("Horizontal", 6, 3, 8, 3))
sketch9.addConstraint(Sketcher.Constraint("Horizontal", 7, 3, 9, 3))
sketch9.addConstraint(Sketcher.Constraint("Horizontal", 10, 3, 11, 3))
sketch9.addConstraint(Sketcher.Constraint("Horizontal", 11, 3, 12, 3))
sketch9.addConstraint(Sketcher.Constraint("Horizontal", 12, 3, 13, 3))
sketch9.addConstraint(Sketcher.Constraint("Horizontal", 16, 3, 17, 3))
sketch9.addConstraint(Sketcher.Constraint("Horizontal", 18, 3, 19, 3))
sketch9.addConstraint(Sketcher.Constraint("Horizontal", 15, 3, 20, 3))
sketch9.addConstraint(Sketcher.Constraint("Vertical", 7, 3, 8, 3))
sketch9.addConstraint(Sketcher.Constraint("Vertical", 6, 3, 9, 3))
sketch9.addConstraint(Sketcher.Constraint("Vertical", 12, 3, 14, 3))
sketch9.addConstraint(Sketcher.Constraint("Vertical", 14, 3, 15, 3))
sketch9.addConstraint(Sketcher.Constraint("Vertical", 13, 3, 20, 3))
sketch9.addConstraint(Sketcher.Constraint("Diameter", 0, 3.0))
sketch9.addConstraint(Sketcher.Constraint("Diameter", 13, 2.0))
sketch9.addConstraint(Sketcher.Constraint("DistanceY", -1, 1, 0, 3, 184.0))
sketch9.addConstraint(Sketcher.Constraint("DistanceY", -1, 1, 1, 3, 15.0))
sketch9.addConstraint(Sketcher.Constraint("DistanceX", -1, 1, 2, 3, 44.0))
sketch9.addConstraint(Sketcher.Constraint("DistanceY", -1, 1, 2, 3, 177.0))
sketch9.addConstraint(Sketcher.Constraint("DistanceX", -1, 1, 5, 3, 71.0))
sketch9.addConstraint(Sketcher.Constraint("DistanceX", -1, 1, 6, 3, 9.0))
sketch9.addConstraint(Sketcher.Constraint("DistanceY", -1, 1, 6, 3, 137.0))
sketch9.addConstraint(Sketcher.Constraint("DistanceX", -1, 1, 7, 3, 32.0))
sketch9.addConstraint(Sketcher.Constraint("DistanceY", -1, 1, 7, 3, 105.0))
sketch9.addConstraint(Sketcher.Constraint("DistanceX", -1, 1, 10, 3, 13.0))
sketch9.addConstraint(Sketcher.Constraint("DistanceX", -1, 1, 12, 3, 56.0))
sketch9.addConstraint(Sketcher.Constraint("DistanceY", -1, 1, 14, 3, 75.0))
sketch9.addConstraint(Sketcher.Constraint("DistanceY", -1, 1, 15, 3, 60.0))
sketch9.addConstraint(Sketcher.Constraint("DistanceX", 1, 3, 0, 3, 8.0))
sketch9.addConstraint(Sketcher.Constraint("DistanceX", 1, 3, 3, 3, 43.0))
sketch9.addConstraint(Sketcher.Constraint("DistanceX", 0, 3, 4, 3, 27.0))
sketch9.addConstraint(Sketcher.Constraint("DistanceX", 1, 3, 11, 3, 13.0))
sketch9.addConstraint(Sketcher.Constraint("DistanceX", 13, 3, 3, 3, 6.0))
sketch9.addConstraint(Sketcher.Constraint("DistanceX", 16, 3, 3, 3, 10.0))
sketch9.addConstraint(Sketcher.Constraint("DistanceX", 17, 3, 16, 3, 23.0))
sketch9.addConstraint(Sketcher.Constraint("DistanceX", 18, 3, 16, 3, 9.0))
sketch9.addConstraint(Sketcher.Constraint("DistanceX", 19, 3, 18, 3, 5.0))
sketch9.addConstraint(Sketcher.Constraint("DistanceX", -1, 1, 0, 3, 30.5))
sketch9.addConstraint(Sketcher.Constraint("DistanceY", -1, 1, 10, 3, 28.5))
sketch9.addConstraint(Sketcher.Constraint("DistanceY", 16, 3, 18, 3, 0.5))
sketch9.addConstraint(Sketcher.Constraint("DistanceY", 16, 3, -1, 1, 10.087489))
sketch9.setExpression("Constraints[35]", "Params.sketch9_diameter")
sketch9.setExpression("Constraints[36]", "Params.sketch9_diameter2")
pocket6 = body.newObject("PartDesign::Pocket", "Pocket005")
pocket6.Profile = sketch9
pocket6.setExpression("Length", "Params.pocket6_length")

sketch10 = body.newObject("Sketcher::SketchObject", "Sketch009")
sketch10.Placement = App.Placement(App.Vector(0, -6.076402, -1.071434), App.Rotation(App.Vector(1, 0, 0), App.Vector(0, -0.173648178, 0.984807753), App.Vector(0, -0.984807753, -0.173648178), "ZXY"))
sketch10.addGeometry(Part.Circle(App.Vector(38, -37.273484, 0), App.Vector(0, 0, 1), 1.5), False)
sketch10.addGeometry(Part.Circle(App.Vector(50, -37.273484, 0), App.Vector(0, 0, 1), 1.5), False)
sketch10.addConstraint(Sketcher.Constraint("Equal", 0, 1))
sketch10.addConstraint(Sketcher.Constraint("Horizontal", 0, 3, 1, 3))
sketch10.addConstraint(Sketcher.Constraint("Diameter", 0, 3.0))
sketch10.addConstraint(Sketcher.Constraint("DistanceX", -1, 1, 0, 3, 38.0))
sketch10.addConstraint(Sketcher.Constraint("DistanceX", -1, 1, 1, 3, 50.0))
sketch10.addConstraint(Sketcher.Constraint("DistanceY", 0, 3, -1, 1, 37.273484))
sketch10.setExpression("Constraints[2]", "Params.sketch10_diameter")
pocket7 = body.newObject("PartDesign::Pocket", "Pocket006")
pocket7.Profile = sketch10
pocket7.setExpression("Length", "Params.pocket7_length")

doc.recompute()
